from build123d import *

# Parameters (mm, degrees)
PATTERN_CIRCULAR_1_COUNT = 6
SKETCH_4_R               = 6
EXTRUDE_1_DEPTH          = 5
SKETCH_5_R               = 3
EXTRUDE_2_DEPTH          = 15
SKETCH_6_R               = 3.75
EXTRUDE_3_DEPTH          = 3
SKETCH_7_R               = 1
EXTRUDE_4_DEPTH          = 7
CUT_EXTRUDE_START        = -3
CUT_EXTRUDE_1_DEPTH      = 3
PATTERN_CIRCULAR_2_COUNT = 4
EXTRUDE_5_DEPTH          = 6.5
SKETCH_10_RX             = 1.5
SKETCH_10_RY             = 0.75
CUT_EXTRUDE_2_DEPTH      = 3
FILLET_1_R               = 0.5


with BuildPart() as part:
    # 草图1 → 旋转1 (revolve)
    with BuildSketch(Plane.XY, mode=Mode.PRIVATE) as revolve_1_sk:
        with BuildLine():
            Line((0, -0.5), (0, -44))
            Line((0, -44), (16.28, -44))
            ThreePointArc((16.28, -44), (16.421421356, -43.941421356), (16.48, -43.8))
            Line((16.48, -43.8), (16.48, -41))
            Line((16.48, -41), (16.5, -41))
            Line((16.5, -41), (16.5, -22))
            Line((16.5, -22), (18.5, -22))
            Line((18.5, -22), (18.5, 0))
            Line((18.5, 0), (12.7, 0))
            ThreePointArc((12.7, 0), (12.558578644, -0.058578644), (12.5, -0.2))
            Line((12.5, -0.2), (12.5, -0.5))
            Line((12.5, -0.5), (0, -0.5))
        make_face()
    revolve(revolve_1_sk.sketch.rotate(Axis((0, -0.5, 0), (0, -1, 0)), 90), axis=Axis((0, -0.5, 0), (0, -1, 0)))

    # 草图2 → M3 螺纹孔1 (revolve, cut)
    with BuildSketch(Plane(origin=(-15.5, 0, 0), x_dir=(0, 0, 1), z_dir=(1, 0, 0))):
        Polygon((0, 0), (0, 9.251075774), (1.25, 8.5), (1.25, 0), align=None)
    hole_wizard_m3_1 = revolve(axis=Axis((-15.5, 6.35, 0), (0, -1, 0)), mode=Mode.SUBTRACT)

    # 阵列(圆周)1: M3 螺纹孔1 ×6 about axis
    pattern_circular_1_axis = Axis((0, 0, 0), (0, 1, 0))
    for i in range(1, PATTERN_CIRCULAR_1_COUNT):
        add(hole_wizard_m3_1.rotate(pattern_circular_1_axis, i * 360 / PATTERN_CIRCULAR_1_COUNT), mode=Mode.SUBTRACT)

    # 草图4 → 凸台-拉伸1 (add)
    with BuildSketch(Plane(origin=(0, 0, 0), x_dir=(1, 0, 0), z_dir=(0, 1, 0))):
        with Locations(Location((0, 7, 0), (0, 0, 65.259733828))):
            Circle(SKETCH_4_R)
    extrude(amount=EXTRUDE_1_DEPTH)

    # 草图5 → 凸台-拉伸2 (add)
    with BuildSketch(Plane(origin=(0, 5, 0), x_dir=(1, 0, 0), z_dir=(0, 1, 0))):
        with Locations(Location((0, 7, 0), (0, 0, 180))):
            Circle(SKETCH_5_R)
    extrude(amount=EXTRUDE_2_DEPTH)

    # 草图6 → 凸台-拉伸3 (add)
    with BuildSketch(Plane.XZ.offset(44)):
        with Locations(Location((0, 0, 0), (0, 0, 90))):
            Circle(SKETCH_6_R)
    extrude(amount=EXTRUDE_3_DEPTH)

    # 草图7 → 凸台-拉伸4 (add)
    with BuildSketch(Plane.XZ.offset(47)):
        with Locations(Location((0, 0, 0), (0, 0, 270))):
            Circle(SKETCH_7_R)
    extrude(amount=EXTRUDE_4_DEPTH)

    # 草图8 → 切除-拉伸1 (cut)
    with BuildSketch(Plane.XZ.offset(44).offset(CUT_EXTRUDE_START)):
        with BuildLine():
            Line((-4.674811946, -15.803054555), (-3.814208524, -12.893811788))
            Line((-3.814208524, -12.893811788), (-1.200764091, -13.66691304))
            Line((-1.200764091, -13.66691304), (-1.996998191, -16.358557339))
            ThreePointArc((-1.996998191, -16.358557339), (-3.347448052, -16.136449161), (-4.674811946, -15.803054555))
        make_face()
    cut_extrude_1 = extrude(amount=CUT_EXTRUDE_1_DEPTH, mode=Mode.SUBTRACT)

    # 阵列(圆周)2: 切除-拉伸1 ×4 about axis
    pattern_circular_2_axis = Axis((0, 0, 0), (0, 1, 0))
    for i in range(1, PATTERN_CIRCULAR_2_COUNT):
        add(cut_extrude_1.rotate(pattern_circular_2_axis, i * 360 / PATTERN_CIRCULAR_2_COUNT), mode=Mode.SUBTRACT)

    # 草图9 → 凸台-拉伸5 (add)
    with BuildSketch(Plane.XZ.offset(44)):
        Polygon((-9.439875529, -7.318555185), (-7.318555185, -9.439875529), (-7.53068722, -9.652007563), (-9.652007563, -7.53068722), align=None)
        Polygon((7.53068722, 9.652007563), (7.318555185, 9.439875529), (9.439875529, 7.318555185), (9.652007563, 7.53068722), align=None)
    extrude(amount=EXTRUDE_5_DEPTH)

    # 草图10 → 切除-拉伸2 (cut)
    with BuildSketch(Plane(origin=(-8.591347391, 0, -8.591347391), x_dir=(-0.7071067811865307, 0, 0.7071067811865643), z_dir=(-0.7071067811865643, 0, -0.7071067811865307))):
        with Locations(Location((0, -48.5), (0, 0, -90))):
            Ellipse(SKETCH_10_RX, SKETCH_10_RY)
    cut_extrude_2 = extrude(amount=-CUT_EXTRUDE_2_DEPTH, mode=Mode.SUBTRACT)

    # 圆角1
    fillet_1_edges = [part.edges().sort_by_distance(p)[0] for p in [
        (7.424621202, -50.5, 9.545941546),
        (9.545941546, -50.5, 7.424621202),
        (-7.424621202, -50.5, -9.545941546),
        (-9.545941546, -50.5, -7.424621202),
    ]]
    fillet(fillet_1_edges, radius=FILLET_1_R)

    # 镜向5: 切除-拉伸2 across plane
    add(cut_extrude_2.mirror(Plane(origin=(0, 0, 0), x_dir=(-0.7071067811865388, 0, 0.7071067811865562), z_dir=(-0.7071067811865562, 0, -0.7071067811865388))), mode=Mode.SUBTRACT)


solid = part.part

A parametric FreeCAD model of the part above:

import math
import FreeCAD as App
import Part
import Sketcher
from FreeCAD import Vector
Q = App.Units.Quantity


def edges_at(feature, points):
    """Names of the edges that pass closest to the given points."""
    edges = feature.Shape.Edges
    near = lambda p: min(range(len(edges)), key=lambda i: edges[i].distToShape(Part.Vertex(*p))[0])
    return sorted({f"Edge{near(p) + 1}" for p in points})

doc = App.newDocument("Part")
body = doc.addObject("PartDesign::Body", "Body")

# Sketch on XY plane
sketch1 = body.newObject("Sketcher::SketchObject", "Sketch")
sketch1.AttachmentSupport = (doc.getObject("XY_Plane"), [""])
sketch1.MapMode = "FlatFace"
sketch1.addGeometry([
    Part.LineSegment(Vector(0, -0.5, 0), Vector(0, -44, 0)),  # 0
    Part.LineSegment(Vector(0, -44, 0), Vector(16.28, -44, 0)),  # 1
    Part.ArcOfCircle(Part.Circle(Vector(16.28, -43.8, 0), Vector(0, 0, 1), 0.2), math.radians(-90), math.radians(0)),  # 2
    Part.LineSegment(Vector(16.48, -43.8, 0), Vector(16.48, -41, 0)),  # 3
    Part.LineSegment(Vector(16.48, -41, 0), Vector(16.5, -41, 0)),  # 4
    Part.LineSegment(Vector(16.5, -41, 0), Vector(16.5, -22, 0)),  # 5
    Part.LineSegment(Vector(16.5, -22, 0), Vector(18.5, -22, 0)),  # 6
    Part.LineSegment(Vector(18.5, -22, 0), Vector(18.5, 0, 0)),  # 7
    Part.LineSegment(Vector(18.5, 0, 0), Vector(12.7, 0, 0)),  # 8
    Part.ArcOfCircle(Part.Circle(Vector(12.7, -0.2, 0), Vector(0, 0, 1), 0.2), math.radians(90), math.radians(180)),  # 9
    Part.LineSegment(Vector(12.5, -0.2, 0), Vector(12.5, -0.5, 0)),  # 10
    Part.LineSegment(Vector(12.5, -0.5, 0), Vector(0, -0.5, 0)),  # 11
], False)
sketch1.addConstraint([
    Sketcher.Constraint("Coincident", 0, 2, 1, 1),
    Sketcher.Constraint("Tangent", 1, 2, 2, 1),
    Sketcher.Constraint("Tangent", 2, 2, 3, 1),
    Sketcher.Constraint("Coincident", 3, 2, 4, 1),
    Sketcher.Constraint("Coincident", 4, 2, 5, 1),
    Sketcher.Constraint("Coincident", 5, 2, 6, 1),
    Sketcher.Constraint("Coincident", 6, 2, 7, 1),
    Sketcher.Constraint("Coincident", 7, 2, 8, 1),
    Sketcher.Constraint("Tangent", 8, 2, 9, 1),
    Sketcher.Constraint("Tangent", 9, 2, 10, 1),
    Sketcher.Constraint("Coincident", 10, 2, 11, 1),
    Sketcher.Constraint("Coincident", 11, 2, 0, 1),
    Sketcher.Constraint("Vertical", 0),
    Sketcher.Constraint("Horizontal", 1),
    Sketcher.Constraint("Vertical", 3),
    Sketcher.Constraint("Horizontal", 4),
    Sketcher.Constraint("Vertical", 5),
    Sketcher.Constraint("Horizontal", 6),
    Sketcher.Constraint("Vertical", 7),
    Sketcher.Constraint("Horizontal", 8),
    Sketcher.Constraint("Vertical", 10),
    Sketcher.Constraint("Horizontal", 11),
    Sketcher.Constraint("Equal", 2, 9),
    Sketcher.Constraint("PointOnObject", 0, 2, -2),
    Sketcher.Constraint("PointOnObject", 7, 2, -1),
    Sketcher.Constraint("Radius", 2, 0.2),
    Sketcher.Constraint("DistanceX", 6, 1, 6, 2, 2.0),
    Sketcher.Constraint("DistanceY", 5, 1, 5, 2, 19.0),
    Sketcher.Constraint("DistanceY", 7, 1, 7, 2, 22.0),
    Sketcher.Constraint("DistanceX", 8, 2, 8, 1, 5.8),
    Sketcher.Constraint("DistanceX", 11, 2, 11, 1, 12.5),
    Sketcher.Constraint("DistanceY", 0, 2, 0, 1, 43.5),
    Sketcher.Constraint("DistanceY", 3, 1, 3, 2, 2.8),
    Sketcher.Constraint("DistanceX", 1, 1, 1, 2, 16.28),
])
revolution = body.newObject("PartDesign::Revolution", "Revolution")
revolution.Profile = sketch1
revolution.ReferenceAxis = (sketch1, ["V_Axis"])
revolution.Angle = 360

# Sketch on YZ plane
sketch2 = body.newObject("Sketcher::SketchObject", "Sketch001")
sketch2.AttachmentSupport = (doc.getObject("YZ_Plane"), [""])
sketch2.MapMode = "FlatFace"
sketch2.AttachmentOffset = App.Placement(Vector(0, 0, -15.5), App.Rotation())
sketch2.addGeometry([
    Part.LineSegment(Vector(-9.3, 0, 0), Vector(0, 0, 0)),
    Part.LineSegment(Vector(0, 0, 0), Vector(0, 1.2, 0)),
    Part.LineSegment(Vector(0, 1.2, 0), Vector(-8.5, 1.2, 0)),
    Part.LineSegment(Vector(-8.5, 1.2, 0), Vector(-9.3, 0, 0)),
], False)
sketch2.addConstraint([
    Sketcher.Constraint("Coincident", 0, 2, 1, 1),
    Sketcher.Constraint("Coincident", 1, 2, 2, 1),
    Sketcher.Constraint("Coincident", 2, 2, 3, 1),
    Sketcher.Constraint("Coincident", 3, 2, 0, 1),
    Sketcher.Constraint("Horizontal", 0),
    Sketcher.Constraint("Vertical", 1),
    Sketcher.Constraint("Horizontal", 2),
    Sketcher.Constraint("Coincident", 0, 2, -1, 1),
    Sketcher.Constraint("Angle", 3, Q("-121 deg")),
    Sketcher.Constraint("DistanceX", 2, 2, 2, 1, 8.5),
    Sketcher.Constraint("DistanceY", 1, 1, 1, 2, 1.25),
])
groove = body.newObject("PartDesign::Groove", "Groove")
groove.Profile = sketch2
groove.ReferenceAxis = (sketch2, ["H_Axis"])
groove.Angle = 360
doc.recompute()

polarpattern = body.newObject("PartDesign::PolarPattern", "PolarPattern")
polarpattern.Originals = [groove]
polarpattern.Axis = (doc.getObject("Y_Axis"), [""])
polarpattern.Angle = 360
polarpattern.Occurrences = 6
body.Tip = polarpattern

# Sketch on XZ plane
sketch3 = body.newObject("Sketcher::SketchObject", "Sketch002")
sketch3.AttachmentSupport = (doc.getObject("XZ_Plane"), [""])
sketch3.MapMode = "FlatFace"
sketch3.addGeometry(Part.Circle(Vector(0, -7, 0), Vector(0, 0, 1), 6), False)
sketch3.addConstraint([
    Sketcher.Constraint("PointOnObject", 0, 3, -2),
    Sketcher.Constraint("Diameter", 0, 12.0),
    Sketcher.Constraint("DistanceY", 0, 3, -1, 1, 7.0),
])
pad1 = body.newObject("PartDesign::Pad", "Pad")
pad1.Profile = sketch3
pad1.Length = 5
pad1.Reversed = True

# Sketch on XZ plane
sketch4 = body.newObject("Sketcher::SketchObject", "Sketch003")
sketch4.AttachmentSupport = (doc.getObject("XZ_Plane"), [""])
sketch4.MapMode = "FlatFace"
sketch4.AttachmentOffset = App.Placement(Vector(0, 0, -5), App.Rotation())
sketch4.addGeometry(Part.Circle(Vector(0, -7, 0), Vector(0, 0, 1), 3), False)
sketch4.addConstraint([
    Sketcher.Constraint("PointOnObject", 0, 3, -2),
    Sketcher.Constraint("Diameter", 0, 6.0),
    Sketcher.Constraint("DistanceY", 0, 3, -1, 1, 7.0),
])
pad2 = body.newObject("PartDesign::Pad", "Pad001")
pad2.Profile = sketch4
pad2.Length = 15
pad2.Reversed = True

# Sketch on XZ plane
sketch5 = body.newObject("Sketcher::SketchObject", "Sketch004")
sketch5.AttachmentSupport = (doc.getObject("XZ_Plane"), [""])
sketch5.MapMode = "FlatFace"
sketch5.AttachmentOffset = App.Placement(Vector(0, 0, 44), App.Rotation())
sketch5.addGeometry(Part.Circle(Vector(0, 0, 0), Vector(0, 0, 1), 3.8), False)
sketch5.addConstraint([
    Sketcher.Constraint("Coincident", 0, 3, -1, 1),
    Sketcher.Constraint("Diameter", 0, 7.5),
])
pad3 = body.newObject("PartDesign::Pad", "Pad002")
pad3.Profile = sketch5
pad3.Length = 3

# Sketch on XZ plane
sketch6 = body.newObject("Sketcher::SketchObject", "Sketch005")
sketch6.AttachmentSupport = (doc.getObject("XZ_Plane"), [""])
sketch6.MapMode = "FlatFace"
sketch6.AttachmentOffset = App.Placement(Vector(0, 0, 47), App.Rotation())
sketch6.addGeometry(Part.Circle(Vector(0, 0, 0), Vector(0, 0, 1), 1), False)
sketch6.addConstraint([
    Sketcher.Constraint("Coincident", 0, 3, -1, 1),
    Sketcher.Constraint("Diameter", 0, 2.0),
])
pad4 = body.newObject("PartDesign::Pad", "Pad003")
pad4.Profile = sketch6
pad4.Length = 7

# Sketch on XZ plane
sketch7 = body.newObject("Sketcher::SketchObject", "Sketch006")
sketch7.AttachmentSupport = (doc.getObject("XZ_Plane"), [""])
sketch7.MapMode = "FlatFace"
sketch7.AttachmentOffset = App.Placement(Vector(0, 0, 41), App.Rotation())
sketch7.addGeometry([
    Part.LineSegment(Vector(-3.8, -12.9, 0), Vector(-4.7, -15.8, 0)),
    Part.ArcOfCircle(Part.Circle(Vector(0, 0, 0), Vector(0, 0, 1), 16.5), math.radians(-106.48), math.radians(-96.96)),
    Part.LineSegment(Vector(-2, -16.4, 0), Vector(-1.2, -13.7, 0)),
    Part.LineSegment(Vector(-1.2, -13.7, 0), Vector(-3.8, -12.9, 0)),
], False)
sketch7.addConstraint([
    Sketcher.Constraint("Coincident", 0, 2, 1, 1),
    Sketcher.Constraint("Coincident", 1, 2, 2, 1),
    Sketcher.Constraint("Coincident", 2, 2, 3, 1),
    Sketcher.Constraint("Coincident", 3, 2, 0, 1),
    Sketcher.Constraint("Coincident", 1, 3, -1, 1),
    Sketcher.Constraint("Parallel", 0, 2),
    Sketcher.Constraint("Perpendicular", 2, 3),
    Sketcher.Constraint("Radius", 1, 16.48),
    Sketcher.Constraint("DistanceX", 1, 2, -1, 1, 1.996998),
    Sketcher.Constraint("DistanceY", 2, 2, 3, 2, 0.773101),
    Sketcher.Constraint("DistanceX", 0, 2, -1, 1, 4.674812),
    Sketcher.Constraint("DistanceX", 3, 2, -1, 1, 3.814209),
])
pocket1 = body.newObject("PartDesign::Pocket", "Pocket")
pocket1.Profile = sketch7
pocket1.Length = 3
pocket1.Reversed = True
doc.recompute()

polarpattern2 = body.newObject("PartDesign::PolarPattern", "PolarPattern001")
polarpattern2.Originals = [pocket1]
polarpattern2.Axis = (doc.getObject("Y_Axis"), [""])
polarpattern2.Angle = 360
polarpattern2.Occurrences = 4
body.Tip = polarpattern2

# Sketch on XZ plane
sketch8 = body.newObject("Sketcher::SketchObject", "Sketch007")
sketch8.AttachmentSupport = (doc.getObject("XZ_Plane"), [""])
sketch8.MapMode = "FlatFace"
sketch8.AttachmentOffset = App.Placement(Vector(0, 0, 44), App.Rotation())
sketch8.addGeometry([
    Part.LineSegment(Vector(-7.32, -9.44, 0), Vector(-9.44, -7.32, 0)),  # 0
    Part.LineSegment(Vector(-9.44, -7.32, 0), Vector(-9.65, -7.53, 0)),  # 1
    Part.LineSegment(Vector(-9.65, -7.53, 0), Vector(-7.53, -9.65, 0)),  # 2
    Part.LineSegment(Vector(-7.53, -9.65, 0), Vector(-7.32, -9.44, 0)),  # 3
    Part.LineSegment(Vector(7.53, 9.65, 0), Vector(7.32, 9.44, 0)),  # 4
    Part.LineSegment(Vector(7.32, 9.44, 0), Vector(9.44, 7.32, 0)),  # 5
    Part.LineSegment(Vector(9.44, 7.32, 0), Vector(9.65, 7.53, 0)),  # 6
    Part.LineSegment(Vector(9.65, 7.53, 0), Vector(7.53, 9.65, 0)),  # 7
], False)
sketch8.addConstraint([
    Sketcher.Constraint("Coincident", 0, 2, 1, 1),
    Sketcher.Constraint("Coincident", 1, 2, 2, 1),
    Sketcher.Constraint("Coincident", 2, 2, 3, 1),
    Sketcher.Constraint("Coincident", 3, 2, 0, 1),
    Sketcher.Constraint("Coincident", 4, 2, 5, 1),
    Sketcher.Constraint("Coincident", 5, 2, 6, 1),
    Sketcher.Constraint("Coincident", 6, 2, 7, 1),
    Sketcher.Constraint("Coincident", 7, 2, 4, 1),
    Sketcher.Constraint("Symmetric", 3, 2, 4, 2, -1, 1),
    Sketcher.Constraint("Symmetric", 0, 2, 5, 2, -1, 1),
    Sketcher.Constraint("Symmetric", 1, 2, 6, 2, -1, 1),
    Sketcher.Constraint("Symmetric", 2, 2, 7, 2, -1, 1),
    Sketcher.Constraint("Perpendicular", 0, 1),
    Sketcher.Constraint("Perpendicular", 1, 2),
    Sketcher.Constraint("Perpendicular", 2, 3),
    Sketcher.Constraint("Angle", 0, Q("135 deg")),
    Sketcher.Constraint("Distance", 0, 3.0),
    Sketcher.Constraint("Distance", 1, 0.3),
    Sketcher.Constraint("DistanceX", 0, 2, 4, 2, 16.758431),
    Sketcher.Constraint("DistanceY", 0, 2, 4, 2, 16.758431),
])
pad5 = body.newObject("PartDesign::Pad", "Pad004")
pad5.Profile = sketch8
pad5.Length = 6.5

# Sketch on an angled plane
sketch9 = body.newObject("Sketcher::SketchObject", "Sketch008")
sketch9.Placement = App.Placement(Vector(-8.591347, 0, -8.591347), App.Rotation(Vector(-0.707106781, 0, 0.707106781), Vector(0, 0.999999999, 0), Vector(-0.707106781, 0, -0.707106781), "ZXY"))
sketch9.addGeometry(Part.Ellipse(Vector(0, -50, 0), Vector(0.75, -48.5, 0), Vector(0, -48.5, 0)), False)
sketch9.addConstraint(Sketcher.Constraint("Block", 0))
pocket2 = body.newObject("PartDesign::Pocket", "Pocket001")
pocket2.Profile = sketch9
pocket2.Length = 3
doc.recompute()

fillet = body.newObject("PartDesign::Fillet", "Fillet")
fillet.Base = (pocket2, edges_at(pocket2, [
    (7.425, -50.5, 9.546),
    (9.546, -50.5, 7.425),
    (-7.425, -50.5, -9.546),
    (-9.546, -50.5, -7.425),
]))
fillet.Radius = 0.5
doc.recompute()

datumplane = body.newObject("PartDesign::Plane", "DatumPlane")
datumplane.Placement = App.Placement(Vector(0, 0, 0), App.Rotation(Vector(0.707106781, 0, -0.707106781), Vector(0, -1, 0), Vector(-0.707106781, 0, -0.707106781), "ZXY"))
mirrored = body.newObject("PartDesign::Mirrored", "Mirrored")
mirrored.Originals = [pocket2]
mirrored.MirrorPlane = (datumplane, [""])
body.Tip = mirrored

doc.recompute()
